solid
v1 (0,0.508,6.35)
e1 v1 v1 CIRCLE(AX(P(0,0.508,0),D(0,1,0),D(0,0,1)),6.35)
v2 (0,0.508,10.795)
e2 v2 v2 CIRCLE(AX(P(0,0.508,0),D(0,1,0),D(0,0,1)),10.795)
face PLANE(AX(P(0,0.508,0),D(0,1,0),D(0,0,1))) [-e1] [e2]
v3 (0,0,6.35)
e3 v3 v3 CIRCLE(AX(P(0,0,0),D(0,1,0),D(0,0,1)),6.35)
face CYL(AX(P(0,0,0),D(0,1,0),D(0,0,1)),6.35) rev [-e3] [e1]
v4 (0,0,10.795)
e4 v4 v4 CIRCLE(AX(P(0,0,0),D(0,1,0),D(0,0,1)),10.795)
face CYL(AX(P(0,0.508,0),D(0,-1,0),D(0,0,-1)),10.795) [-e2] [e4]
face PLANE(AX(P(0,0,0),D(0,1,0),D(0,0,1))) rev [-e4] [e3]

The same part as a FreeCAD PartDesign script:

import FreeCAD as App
import Part
import Sketcher
Q = App.Units.Quantity

doc = App.newDocument("Part")
body = doc.addObject("PartDesign::Body", "Body")

# Sketch on XZ plane
sketch1 = body.newObject("Sketcher::SketchObject", "Sketch")
sketch1.AttachmentSupport = (doc.getObject("XZ_Plane"), [""])
sketch1.MapMode = "FlatFace"
sketch1.addGeometry(Part.Circle(App.Vector(0, 0, 0), App.Vector(0, 0, 1), 10.795), False)
sketch1.addConstraint(Sketcher.Constraint("Coincident", 0, 3, -1, 1))
sketch1.addConstraint(Sketcher.Constraint("Diameter", 0, Q("0.85 in")))
pad1 = body.newObject("PartDesign::Pad", "Pad")
pad1.Profile = sketch1
pad1.Length = Q("0.02 in")
pad1.Reversed = True

# Sketch on XZ plane
sketch2 = body.newObject("Sketcher::SketchObject", "Sketch001")
sketch2.AttachmentSupport = (doc.getObject("XZ_Plane"), [""])
sketch2.MapMode = "FlatFace"
sketch2.AttachmentOffset = App.Placement(App.Vector(0, 0, -0.02 * 25.4), App.Rotation())
sketch2.addGeometry(Part.Circle(App.Vector(0, 0, 0), App.Vector(0, 0, 1), 6.35), False)
sketch2.addConstraint(Sketcher.Constraint("Coincident", 0, 3, -1, 1))
sketch2.addConstraint(Sketcher.Constraint("Diameter", 0, Q("0.5 in")))
pocket1 = body.newObject("PartDesign::Pocket", "Pocket")
pocket1.Profile = sketch2
pocket1.Type = "ThroughAll"
pocket1.Reversed = True

doc.recompute()
